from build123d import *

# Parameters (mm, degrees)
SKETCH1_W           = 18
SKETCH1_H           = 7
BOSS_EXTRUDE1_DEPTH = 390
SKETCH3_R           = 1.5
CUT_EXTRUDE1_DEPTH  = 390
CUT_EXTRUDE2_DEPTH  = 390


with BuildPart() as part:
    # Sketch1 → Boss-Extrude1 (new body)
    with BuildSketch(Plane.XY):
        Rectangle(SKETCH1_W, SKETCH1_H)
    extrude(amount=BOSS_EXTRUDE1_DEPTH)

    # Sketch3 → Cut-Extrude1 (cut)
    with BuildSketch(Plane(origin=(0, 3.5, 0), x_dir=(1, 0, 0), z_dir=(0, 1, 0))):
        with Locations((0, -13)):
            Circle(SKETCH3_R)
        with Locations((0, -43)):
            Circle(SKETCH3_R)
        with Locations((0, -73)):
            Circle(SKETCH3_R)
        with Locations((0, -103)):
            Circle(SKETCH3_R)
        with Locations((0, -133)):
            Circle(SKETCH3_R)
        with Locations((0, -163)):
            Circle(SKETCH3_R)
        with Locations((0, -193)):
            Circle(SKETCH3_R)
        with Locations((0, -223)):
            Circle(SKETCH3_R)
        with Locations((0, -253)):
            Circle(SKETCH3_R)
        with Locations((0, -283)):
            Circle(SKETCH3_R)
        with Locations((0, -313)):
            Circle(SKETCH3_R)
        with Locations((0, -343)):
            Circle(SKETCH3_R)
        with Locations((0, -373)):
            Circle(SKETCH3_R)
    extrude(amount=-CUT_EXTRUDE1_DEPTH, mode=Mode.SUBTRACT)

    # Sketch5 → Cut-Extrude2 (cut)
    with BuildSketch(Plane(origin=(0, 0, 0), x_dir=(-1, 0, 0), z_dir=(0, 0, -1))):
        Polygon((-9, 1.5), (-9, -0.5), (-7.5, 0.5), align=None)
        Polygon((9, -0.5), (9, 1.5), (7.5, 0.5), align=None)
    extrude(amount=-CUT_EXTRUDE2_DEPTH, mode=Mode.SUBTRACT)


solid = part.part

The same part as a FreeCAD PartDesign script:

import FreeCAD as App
import Part
import Sketcher


def add_polygon(sketch, points):
    """Adds a closed chain of lines whose ends are joined by coincident constraints."""
    first, n = sketch.GeometryCount, len(points)
    for a, b in zip(points, points[1:] + points[:1]):
        sketch.addGeometry(Part.LineSegment(App.Vector(*a, 0), App.Vector(*b, 0)), False)
    for i in range(n):
        sketch.addConstraint(Sketcher.Constraint("Coincident", first + i, 2, first + (i + 1) % n, 1))

doc = App.newDocument("Part")
params = doc.addObject("Spreadsheet::Sheet", "Params")
for row, (alias, value) in enumerate([
    ("sketch1_width", "18 mm"),
    ("sketch1_height", "7 mm"),
    ("pad1_length", "390 mm"),
    ("sketch2_diameter", "3 mm"),
    ("pocket1_length", "390 mm"),
    ("sketch3_height", "2 mm"),
    ("pocket2_length", "390 mm"),
], start=1):
    params.set(f"A{row}", alias)
    params.set(f"B{row}", "=" + value)
    params.setAlias(f"B{row}", alias)

body = doc.addObject("PartDesign::Body", "Body")

sketch1 = doc.addObject("Sketcher::SketchObject", "Sketch")
body.addObject(sketch1)
sketch1.AttachmentSupport = (doc.XY_Plane, [""])
sketch1.MapMode = "FlatFace"
add_polygon(sketch1, [(-9, 4), (-9, -4), (9, -4), (9, 4)])
sketch1.addConstraint(Sketcher.Constraint("Vertical", 0))
sketch1.addConstraint(Sketcher.Constraint("Horizontal", 1))
sketch1.addConstraint(Sketcher.Constraint("Vertical", 2))
sketch1.addConstraint(Sketcher.Constraint("Horizontal", 3))
sketch1.addConstraint(Sketcher.Constraint("Symmetric", 0, 2, 2, 2, -1, 1))
sketch1.addConstraint(Sketcher.Constraint("DistanceX", 1, 1, 1, 2, 18.0))
sketch1.addConstraint(Sketcher.Constraint("DistanceY", 0, 2, 0, 1, 7.0))
sketch1.setExpression("Constraints[9]", "Params.sketch1_width")
sketch1.setExpression("Constraints[10]", "Params.sketch1_height")
pad1 = doc.addObject("PartDesign::Pad", "Pad")
body.addObject(pad1)
pad1.Profile = sketch1
pad1.setExpression("Length", "Params.pad1_length")

sketch2 = doc.addObject("Sketcher::SketchObject", "Sketch001")
body.addObject(sketch2)
sketch2.AttachmentSupport = (doc.XZ_Plane, [""])
sketch2.MapMode = "FlatFace"
sketch2.AttachmentOffset = App.Placement(App.Vector(0, 0, -3.5), App.Rotation())
sketch2.addGeometry(Part.Circle(App.Vector(0, 13, 0), App.Vector(0, 0, 1), 1.5), False)
sketch2.addGeometry(Part.Circle(App.Vector(0, 43, 0), App.Vector(0, 0, 1), 1.5), False)
sketch2.addGeometry(Part.Circle(App.Vector(0, 73, 0), App.Vector(0, 0, 1), 1.5), False)
sketch2.addGeometry(Part.Circle(App.Vector(0, 103, 0), App.Vector(0, 0, 1), 1.5), False)
sketch2.addGeometry(Part.Circle(App.Vector(0, 133, 0), App.Vector(0, 0, 1), 1.5), False)
sketch2.addGeometry(Part.Circle(App.Vector(0, 163, 0), App.Vector(0, 0, 1), 1.5), False)
sketch2.addGeometry(Part.Circle(App.Vector(0, 193, 0), App.Vector(0, 0, 1), 1.5), False)
sketch2.addGeometry(Part.Circle(App.Vector(0, 223, 0), App.Vector(0, 0, 1), 1.5), False)
sketch2.addGeometry(Part.Circle(App.Vector(0, 253, 0), App.Vector(0, 0, 1), 1.5), False)
sketch2.addGeometry(Part.Circle(App.Vector(0, 283, 0), App.Vector(0, 0, 1), 1.5), False)
sketch2.addGeometry(Part.Circle(App.Vector(0, 313, 0), App.Vector(0, 0, 1), 1.5), False)
sketch2.addGeometry(Part.Circle(App.Vector(0, 343, 0), App.Vector(0, 0, 1), 1.5), False)
sketch2.addGeometry(Part.Circle(App.Vector(0, 373, 0), App.Vector(0, 0, 1), 1.5), False)
sketch2.addConstraint(Sketcher.Constraint("Equal", 0, 1))
sketch2.addConstraint(Sketcher.Constraint("Equal", 1, 2))
sketch2.addConstraint(Sketcher.Constraint("Equal", 2, 3))
sketch2.addConstraint(Sketcher.Constraint("Equal", 3, 4))
sketch2.addConstraint(Sketcher.Constraint("Equal", 4, 5))
sketch2.addConstraint(Sketcher.Constraint("Equal", 5, 6))
sketch2.addConstraint(Sketcher.Constraint("Equal", 6, 7))
sketch2.addConstraint(Sketcher.Constraint("Equal", 7, 8))
sketch2.addConstraint(Sketcher.Constraint("Equal", 8, 9))
sketch2.addConstraint(Sketcher.Constraint("Equal", 9, 10))
sketch2.addConstraint(Sketcher.Constraint("Equal", 10, 11))
sketch2.addConstraint(Sketcher.Constraint("Equal", 11, 12))
sketch2.addConstraint(Sketcher.Constraint("PointOnObject", 0, 3, -2))
sketch2.addConstraint(Sketcher.Constraint("PointOnObject", 1, 3, -2))
sketch2.addConstraint(Sketcher.Constraint("PointOnObject", 2, 3, -2))
sketch2.addConstraint(Sketcher.Constraint("PointOnObject", 3, 3, -2))
sketch2.addConstraint(Sketcher.Constraint("PointOnObject", 4, 3, -2))
sketch2.addConstraint(Sketcher.Constraint("PointOnObject", 5, 3, -2))
sketch2.addConstraint(Sketcher.Constraint("PointOnObject", 6, 3, -2))
sketch2.addConstraint(Sketcher.Constraint("PointOnObject", 7, 3, -2))
sketch2.addConstraint(Sketcher.Constraint("PointOnObject", 8, 3, -2))
sketch2.addConstraint(Sketcher.Constraint("PointOnObject", 9, 3, -2))
sketch2.addConstraint(Sketcher.Constraint("PointOnObject", 10, 3, -2))
sketch2.addConstraint(Sketcher.Constraint("PointOnObject", 11, 3, -2))
sketch2.addConstraint(Sketcher.Constraint("PointOnObject", 12, 3, -2))
sketch2.addConstraint(Sketcher.Constraint("Diameter", 0, 3.0))
sketch2.addConstraint(Sketcher.Constraint("DistanceY", -1, 1, 0, 3, 13.0))
sketch2.addConstraint(Sketcher.Constraint("DistanceY", -1, 1, 1, 3, 43.0))
sketch2.addConstraint(Sketcher.Constraint("DistanceY", -1, 1, 2, 3, 73.0))
sketch2.addConstraint(Sketcher.Constraint("DistanceY", -1, 1, 3, 3, 103.0))
sketch2.addConstraint(Sketcher.Constraint("DistanceY", -1, 1, 4, 3, 133.0))
sketch2.addConstraint(Sketcher.Constraint("DistanceY", -1, 1, 5, 3, 163.0))
sketch2.addConstraint(Sketcher.Constraint("DistanceY", -1, 1, 6, 3, 193.0))
sketch2.addConstraint(Sketcher.Constraint("DistanceY", -1, 1, 7, 3, 223.0))
sketch2.addConstraint(Sketcher.Constraint("DistanceY", -1, 1, 8, 3, 253.0))
sketch2.addConstraint(Sketcher.Constraint("DistanceY", -1, 1, 9, 3, 283.0))
sketch2.addConstraint(Sketcher.Constraint("DistanceY", -1, 1, 10, 3, 313.0))
sketch2.addConstraint(Sketcher.Constraint("DistanceY", -1, 1, 11, 3, 343.0))
sketch2.addConstraint(Sketcher.Constraint("DistanceY", -1, 1, 12, 3, 373.0))
sketch2.setExpression("Constraints[25]", "Params.sketch2_diameter")
pocket1 = doc.addObject("PartDesign::Pocket", "Pocket")
body.addObject(pocket1)
pocket1.Profile = sketch2
pocket1.setExpression("Length", "Params.pocket1_length")
pocket1.Reversed = True

sketch3 = doc.addObject("Sketcher::SketchObject", "Sketch002")
body.addObject(sketch3)
sketch3.AttachmentSupport = (doc.XY_Plane, [""])
sketch3.MapMode = "FlatFace"
add_polygon(sketch3, [(9, 1.5), (9, -0.5), (7.5, 0.5)])
add_polygon(sketch3, [(-9, -0.5), (-9, 1.5), (-7.5, 0.5)])
sketch3.addConstraint(Sketcher.Constraint("Vertical", 0))
sketch3.addConstraint(Sketcher.Constraint("Vertical", 3))
sketch3.addConstraint(Sketcher.Constraint("Symmetric", 2, 2, 3, 2, -2))
sketch3.addConstraint(Sketcher.Constraint("Symmetric", 1, 2, 4, 2, -2))
sketch3.addConstraint(Sketcher.Constraint("Parallel", 1, 4))
sketch3.addConstraint(Sketcher.Constraint("Parallel", 2, 5))
sketch3.addConstraint(Sketcher.Constraint("DistanceY", 0, 2, 0, 1, 2.0))
sketch3.addConstraint(Sketcher.Constraint("DistanceX", -1, 1, 0, 2, 9.0))
sketch3.addConstraint(Sketcher.Constraint("DistanceX", 4, 2, 1, 2, 15.0))
sketch3.addConstraint(Sketcher.Constraint("DistanceY", 0, 2, -1, 1, 0.5))
sketch3.setExpression("Constraints[12]", "Params.sketch3_height")
pocket2 = doc.addObject("PartDesign::Pocket", "Pocket001")
body.addObject(pocket2)
pocket2.Profile = sketch3
pocket2.setExpression("Length", "Params.pocket2_length")
pocket2.Reversed = True

doc.recompute()
